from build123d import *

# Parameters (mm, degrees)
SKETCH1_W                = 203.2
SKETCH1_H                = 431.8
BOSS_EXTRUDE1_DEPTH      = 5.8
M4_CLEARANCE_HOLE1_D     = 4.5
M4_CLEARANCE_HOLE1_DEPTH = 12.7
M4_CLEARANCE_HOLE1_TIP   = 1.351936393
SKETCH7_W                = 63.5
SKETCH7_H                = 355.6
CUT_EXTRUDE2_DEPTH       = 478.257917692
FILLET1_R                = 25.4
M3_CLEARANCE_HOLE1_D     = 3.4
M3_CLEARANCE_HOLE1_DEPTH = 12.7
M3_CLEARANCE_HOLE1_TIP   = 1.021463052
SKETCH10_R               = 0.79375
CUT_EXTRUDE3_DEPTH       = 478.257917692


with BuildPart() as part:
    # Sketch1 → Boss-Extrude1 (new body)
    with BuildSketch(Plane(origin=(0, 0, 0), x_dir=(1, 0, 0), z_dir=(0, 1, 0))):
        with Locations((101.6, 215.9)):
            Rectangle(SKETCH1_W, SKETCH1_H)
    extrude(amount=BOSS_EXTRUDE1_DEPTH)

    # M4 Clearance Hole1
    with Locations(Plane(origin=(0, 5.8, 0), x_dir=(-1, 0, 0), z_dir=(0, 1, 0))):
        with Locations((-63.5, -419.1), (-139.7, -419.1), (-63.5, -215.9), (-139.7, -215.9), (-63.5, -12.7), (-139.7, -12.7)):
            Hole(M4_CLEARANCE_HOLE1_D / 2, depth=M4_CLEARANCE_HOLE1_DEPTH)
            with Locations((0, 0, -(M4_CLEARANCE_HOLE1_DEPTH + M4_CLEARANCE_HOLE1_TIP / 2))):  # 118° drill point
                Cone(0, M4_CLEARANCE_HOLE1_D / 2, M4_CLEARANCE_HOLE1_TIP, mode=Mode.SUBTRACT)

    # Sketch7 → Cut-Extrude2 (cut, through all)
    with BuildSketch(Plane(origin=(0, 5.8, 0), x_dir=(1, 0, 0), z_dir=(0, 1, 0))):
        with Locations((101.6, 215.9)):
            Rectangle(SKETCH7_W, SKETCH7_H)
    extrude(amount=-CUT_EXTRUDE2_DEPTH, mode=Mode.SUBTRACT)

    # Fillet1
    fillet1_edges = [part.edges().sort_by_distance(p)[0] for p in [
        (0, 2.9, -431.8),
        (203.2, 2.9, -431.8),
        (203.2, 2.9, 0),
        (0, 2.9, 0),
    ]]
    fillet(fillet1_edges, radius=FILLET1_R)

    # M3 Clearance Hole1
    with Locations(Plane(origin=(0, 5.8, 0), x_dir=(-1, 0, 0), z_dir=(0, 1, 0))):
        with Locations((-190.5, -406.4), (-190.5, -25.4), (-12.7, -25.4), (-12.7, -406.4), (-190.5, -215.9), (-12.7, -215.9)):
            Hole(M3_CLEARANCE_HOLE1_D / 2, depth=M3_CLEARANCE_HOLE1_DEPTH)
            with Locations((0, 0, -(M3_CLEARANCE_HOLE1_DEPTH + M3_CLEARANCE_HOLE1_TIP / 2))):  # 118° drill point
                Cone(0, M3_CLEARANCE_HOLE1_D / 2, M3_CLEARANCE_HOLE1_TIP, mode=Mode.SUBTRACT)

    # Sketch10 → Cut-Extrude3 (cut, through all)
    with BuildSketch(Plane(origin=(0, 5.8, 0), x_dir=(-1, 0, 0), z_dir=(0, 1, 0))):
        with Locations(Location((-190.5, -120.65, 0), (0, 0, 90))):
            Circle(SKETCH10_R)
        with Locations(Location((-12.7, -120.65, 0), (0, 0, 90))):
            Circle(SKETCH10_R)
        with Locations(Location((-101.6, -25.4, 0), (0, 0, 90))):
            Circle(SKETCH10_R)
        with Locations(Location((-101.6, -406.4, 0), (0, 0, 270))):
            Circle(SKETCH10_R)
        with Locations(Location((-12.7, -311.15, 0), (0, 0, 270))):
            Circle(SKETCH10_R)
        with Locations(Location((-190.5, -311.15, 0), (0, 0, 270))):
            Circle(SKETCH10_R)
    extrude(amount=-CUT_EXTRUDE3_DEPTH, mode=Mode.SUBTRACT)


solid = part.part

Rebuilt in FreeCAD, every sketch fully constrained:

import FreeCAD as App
import Part
import Sketcher
Q = App.Units.Quantity


def edges_at(feature, points):
    """Names of the edges that pass closest to the given points."""
    edges = feature.Shape.Edges
    near = lambda p: min(range(len(edges)), key=lambda i: edges[i].distToShape(Part.Vertex(*p))[0])
    return sorted({f"Edge{near(p) + 1}" for p in points})

doc = App.newDocument("Part")
body = doc.addObject("PartDesign::Body", "Body")

sketch1 = doc.addObject("Sketcher::SketchObject", "Sketch")
body.addObject(sketch1)
sketch1.AttachmentSupport = (doc.XZ_Plane, [""])
sketch1.MapMode = "FlatFace"
sketch1.addGeometry(Part.LineSegment(App.Vector(0, -431.8, 0), App.Vector(0, 0, 0)), False)
sketch1.addGeometry(Part.LineSegment(App.Vector(0, 0, 0), App.Vector(203.2, 0, 0)), False)
sketch1.addGeometry(Part.LineSegment(App.Vector(203.2, 0, 0), App.Vector(203.2, -431.8, 0)), False)
sketch1.addGeometry(Part.LineSegment(App.Vector(203.2, -431.8, 0), App.Vector(0, -431.8, 0)), False)
sketch1.addConstraint(Sketcher.Constraint("Coincident", 0, 2, 1, 1))
sketch1.addConstraint(Sketcher.Constraint("Coincident", 1, 2, 2, 1))
sketch1.addConstraint(Sketcher.Constraint("Coincident", 2, 2, 3, 1))
sketch1.addConstraint(Sketcher.Constraint("Coincident", 3, 2, 0, 1))
sketch1.addConstraint(Sketcher.Constraint("Vertical", 0))
sketch1.addConstraint(Sketcher.Constraint("Horizontal", 1))
sketch1.addConstraint(Sketcher.Constraint("Vertical", 2))
sketch1.addConstraint(Sketcher.Constraint("Horizontal", 3))
sketch1.addConstraint(Sketcher.Constraint("Coincident", 0, 2, -1, 1))
sketch1.addConstraint(Sketcher.Constraint("DistanceX", 1, 1, 1, 2, Q("8 in")))
sketch1.addConstraint(Sketcher.Constraint("DistanceY", 0, 1, 0, 2, Q("17 in")))
pad1 = doc.addObject("PartDesign::Pad", "Pad")
body.addObject(pad1)
pad1.Profile = sketch1
pad1.Length = 5.8
pad1.Reversed = True

sketch2 = doc.addObject("Sketcher::SketchObject", "Sketch001")
body.addObject(sketch2)
sketch2.AttachmentSupport = (doc.XZ_Plane, [""])
sketch2.MapMode = "FlatFace"
sketch2.AttachmentOffset = App.Placement(App.Vector(0, 0, -5.8), App.Rotation())
sketch2.addGeometry(Part.Circle(App.Vector(63.5, -419.1, 0), App.Vector(0, 0, 1), 2.25), False)
sketch2.addGeometry(Part.Circle(App.Vector(139.7, -419.1, 0), App.Vector(0, 0, 1), 2.25), False)
sketch2.addGeometry(Part.Circle(App.Vector(63.5, -215.9, 0), App.Vector(0, 0, 1), 2.25), False)
sketch2.addGeometry(Part.Circle(App.Vector(139.7, -215.9, 0), App.Vector(0, 0, 1), 2.25), False)
sketch2.addGeometry(Part.Circle(App.Vector(63.5, -12.7, 0), App.Vector(0, 0, 1), 2.25), False)
sketch2.addGeometry(Part.Circle(App.Vector(139.7, -12.7, 0), App.Vector(0, 0, 1), 2.25), False)
sketch2.addConstraint(Sketcher.Constraint("Equal", 0, 1))
sketch2.addConstraint(Sketcher.Constraint("Equal", 1, 2))
sketch2.addConstraint(Sketcher.Constraint("Equal", 2, 3))
sketch2.addConstraint(Sketcher.Constraint("Equal", 3, 4))
sketch2.addConstraint(Sketcher.Constraint("Equal", 4, 5))
sketch2.addConstraint(Sketcher.Constraint("Horizontal", 0, 3, 1, 3))
sketch2.addConstraint(Sketcher.Constraint("Horizontal", 2, 3, 3, 3))
sketch2.addConstraint(Sketcher.Constraint("Horizontal", 4, 3, 5, 3))
sketch2.addConstraint(Sketcher.Constraint("Vertical", 0, 3, 2, 3))
sketch2.addConstraint(Sketcher.Constraint("Vertical", 1, 3, 3, 3))
sketch2.addConstraint(Sketcher.Constraint("Vertical", 2, 3, 4, 3))
sketch2.addConstraint(Sketcher.Constraint("Vertical", 3, 3, 5, 3))
sketch2.addConstraint(Sketcher.Constraint("DistanceX", 0, 3, 1, 3, Q("3 in")))
sketch2.addConstraint(Sketcher.Constraint("DistanceY", 0, 3, 2, 3, Q("8 in")))
sketch2.addConstraint(Sketcher.Constraint("DistanceY", 2, 3, 4, 3, Q("8 in")))
sketch2.addConstraint(Sketcher.Constraint("DistanceX", -1, 1, 0, 3, Q("2.5 in")))
sketch2.addConstraint(Sketcher.Constraint("DistanceY", 0, 3, -1, 1, Q("16.5 in")))
sketch2.addConstraint(Sketcher.Constraint("Diameter", 0, Q("4.5 mm")))
doc.recompute()
hole = doc.addObject("PartDesign::Hole", "Hole")
body.addObject(hole)
hole.Profile = sketch2
hole.ThreadType = "None"
hole.Diameter = 4.5
hole.DepthType = "Dimension"
hole.Depth = Q("0.5 in")
hole.DrillPoint = "Angled"
hole.DrillPointAngle = 118
hole.Reversed = True

sketch3 = doc.addObject("Sketcher::SketchObject", "Sketch002")
body.addObject(sketch3)
sketch3.AttachmentSupport = (doc.XZ_Plane, [""])
sketch3.MapMode = "FlatFace"
sketch3.AttachmentOffset = App.Placement(App.Vector(0, 0, -5.8), App.Rotation())
sketch3.addGeometry(Part.LineSegment(App.Vector(69.85, -393.7, 0), App.Vector(69.85, -38.1, 0)), False)
sketch3.addGeometry(Part.LineSegment(App.Vector(69.85, -38.1, 0), App.Vector(133.35, -38.1, 0)), False)
sketch3.addGeometry(Part.LineSegment(App.Vector(133.35, -38.1, 0), App.Vector(133.35, -393.7, 0)), False)
sketch3.addGeometry(Part.LineSegment(App.Vector(133.35, -393.7, 0), App.Vector(69.85, -393.7, 0)), False)
sketch3.addConstraint(Sketcher.Constraint("Coincident", 0, 2, 1, 1))
sketch3.addConstraint(Sketcher.Constraint("Coincident", 1, 2, 2, 1))
sketch3.addConstraint(Sketcher.Constraint("Coincident", 2, 2, 3, 1))
sketch3.addConstraint(Sketcher.Constraint("Coincident", 3, 2, 0, 1))
sketch3.addConstraint(Sketcher.Constraint("Vertical", 0))
sketch3.addConstraint(Sketcher.Constraint("Horizontal", 1))
sketch3.addConstraint(Sketcher.Constraint("Vertical", 2))
sketch3.addConstraint(Sketcher.Constraint("Horizontal", 3))
sketch3.addConstraint(Sketcher.Constraint("DistanceY", 0, 1, 0, 2, Q("14 in")))
sketch3.addConstraint(Sketcher.Constraint("DistanceX", 1, 1, 1, 2, Q("2.5 in")))
sketch3.addConstraint(Sketcher.Constraint("DistanceY", 0, 2, -1, 1, Q("1.5 in")))
sketch3.addConstraint(Sketcher.Constraint("DistanceX", -1, 1, 0, 2, Q("2.75 in")))
pocket1 = doc.addObject("PartDesign::Pocket", "Pocket")
body.addObject(pocket1)
pocket1.Profile = sketch3
pocket1.Type = "ThroughAll"
pocket1.Reversed = True
doc.recompute()

fillet = doc.addObject("PartDesign::Fillet", "Fillet")
body.addObject(fillet)
fillet.Base = (pocket1, edges_at(pocket1, [
    (0, 2.9, -431.8),
    (203.2, 2.9, -431.8),
    (203.2, 2.9, 0),
    (0, 2.9, 0),
]))
fillet.Radius = Q("1 in")

sketch4 = doc.addObject("Sketcher::SketchObject", "Sketch003")
body.addObject(sketch4)
sketch4.AttachmentSupport = (doc.XZ_Plane, [""])
sketch4.MapMode = "FlatFace"
sketch4.AttachmentOffset = App.Placement(App.Vector(0, 0, -5.8), App.Rotation())
sketch4.addGeometry(Part.Circle(App.Vector(190.5, -406.4, 0), App.Vector(0, 0, 1), 1.7), False)
sketch4.addGeometry(Part.Circle(App.Vector(190.5, -25.4, 0), App.Vector(0, 0, 1), 1.7), False)
sketch4.addGeometry(Part.Circle(App.Vector(12.7, -25.4, 0), App.Vector(0, 0, 1), 1.7), False)
sketch4.addGeometry(Part.Circle(App.Vector(12.7, -406.4, 0), App.Vector(0, 0, 1), 1.7), False)
sketch4.addGeometry(Part.Circle(App.Vector(190.5, -215.9, 0), App.Vector(0, 0, 1), 1.7), False)
sketch4.addGeometry(Part.Circle(App.Vector(12.7, -215.9, 0), App.Vector(0, 0, 1), 1.7), False)
sketch4.addConstraint(Sketcher.Constraint("Equal", 0, 1))
sketch4.addConstraint(Sketcher.Constraint("Equal", 1, 2))
sketch4.addConstraint(Sketcher.Constraint("Equal", 2, 3))
sketch4.addConstraint(Sketcher.Constraint("Equal", 3, 4))
sketch4.addConstraint(Sketcher.Constraint("Equal", 4, 5))
sketch4.addConstraint(Sketcher.Constraint("Horizontal", 1, 3, 2, 3))
sketch4.addConstraint(Sketcher.Constraint("Horizontal", 0, 3, 3, 3))
sketch4.addConstraint(Sketcher.Constraint("Horizontal", 4, 3, 5, 3))
sketch4.addConstraint(Sketcher.Constraint("Vertical", 0, 3, 1, 3))
sketch4.addConstraint(Sketcher.Constraint("Vertical", 2, 3, 3, 3))
sketch4.addConstraint(Sketcher.Constraint("Vertical", 1, 3, 4, 3))
sketch4.addConstraint(Sketcher.Constraint("Vertical", 3, 3, 5, 3))
sketch4.addConstraint(Sketcher.Constraint("DistanceY", 0, 3, -1, 1, Q("16 in")))
sketch4.addConstraint(Sketcher.Constraint("DistanceY", 1, 3, -1, 1, Q("1 in")))
sketch4.addConstraint(Sketcher.Constraint("DistanceX", 2, 3, 1, 3, Q("7 in")))
sketch4.addConstraint(Sketcher.Constraint("DistanceX", -1, 1, 0, 3, Q("7.5 in")))
sketch4.addConstraint(Sketcher.Constraint("DistanceY", 4, 3, -1, 1, Q("8.5 in")))
sketch4.addConstraint(Sketcher.Constraint("Diameter", 0, Q("3.4 mm")))
doc.recompute()
hole2 = doc.addObject("PartDesign::Hole", "Hole001")
body.addObject(hole2)
hole2.Profile = sketch4
hole2.ThreadType = "None"
hole2.Diameter = 3.4
hole2.DepthType = "Dimension"
hole2.Depth = Q("0.5 in")
hole2.DrillPoint = "Angled"
hole2.DrillPointAngle = 118
hole2.Reversed = True

sketch5 = doc.addObject("Sketcher::SketchObject", "Sketch004")
body.addObject(sketch5)
sketch5.AttachmentSupport = (doc.XZ_Plane, [""])
sketch5.MapMode = "FlatFace"
sketch5.AttachmentOffset = App.Placement(App.Vector(0, 0, -5.8), App.Rotation())
sketch5.addGeometry(Part.Circle(App.Vector(190.5, -120.65, 0), App.Vector(0, 0, 1), 0.79375), False)
sketch5.addGeometry(Part.Circle(App.Vector(12.7, -120.65, 0), App.Vector(0, 0, 1), 0.79375), False)
sketch5.addGeometry(Part.Circle(App.Vector(101.6, -25.4, 0), App.Vector(0, 0, 1), 0.79375), False)
sketch5.addGeometry(Part.Circle(App.Vector(101.6, -406.4, 0), App.Vector(0, 0, 1), 0.79375), False)
sketch5.addGeometry(Part.Circle(App.Vector(12.7, -311.15, 0), App.Vector(0, 0, 1), 0.79375), False)
sketch5.addGeometry(Part.Circle(App.Vector(190.5, -311.15, 0), App.Vector(0, 0, 1), 0.79375), False)
sketch5.addConstraint(Sketcher.Constraint("Equal", 0, 1))
sketch5.addConstraint(Sketcher.Constraint("Equal", 1, 2))
sketch5.addConstraint(Sketcher.Constraint("Equal", 2, 3))
sketch5.addConstraint(Sketcher.Constraint("Equal", 3, 4))
sketch5.addConstraint(Sketcher.Constraint("Equal", 4, 5))
sketch5.addConstraint(Sketcher.Constraint("Horizontal", 0, 3, 1, 3))
sketch5.addConstraint(Sketcher.Constraint("Horizontal", 4, 3, 5, 3))
sketch5.addConstraint(Sketcher.Constraint("Vertical", 2, 3, 3, 3))
sketch5.addConstraint(Sketcher.Constraint("Vertical", 1, 3, 4, 3))
sketch5.addConstraint(Sketcher.Constraint("Vertical", 0, 3, 5, 3))
sketch5.addConstraint(Sketcher.Constraint("Diameter", 0, Q("0.0625 in")))
sketch5.addConstraint(Sketcher.Constraint("DistanceX", -1, 1, 2, 3, Q("4 in")))
sketch5.addConstraint(Sketcher.Constraint("DistanceY", 2, 3, -1, 1, Q("1 in")))
sketch5.addConstraint(Sketcher.Constraint("DistanceY", 3, 3, -1, 1, Q("16 in")))
sketch5.addConstraint(Sketcher.Constraint("DistanceX", 1, 3, 0, 3, Q("7 in")))
sketch5.addConstraint(Sketcher.Constraint("DistanceX", -1, 1, 0, 3, Q("7.5 in")))
sketch5.addConstraint(Sketcher.Constraint("DistanceY", 4, 3, 1, 3, Q("7.5 in")))
sketch5.addConstraint(Sketcher.Constraint("DistanceY", 0, 3, -1, 1, Q("4.75 in")))
pocket2 = doc.addObject("PartDesign::Pocket", "Pocket001")
body.addObject(pocket2)
pocket2.Profile = sketch5
pocket2.Type = "ThroughAll"
pocket2.Reversed = True

doc.recompute()
